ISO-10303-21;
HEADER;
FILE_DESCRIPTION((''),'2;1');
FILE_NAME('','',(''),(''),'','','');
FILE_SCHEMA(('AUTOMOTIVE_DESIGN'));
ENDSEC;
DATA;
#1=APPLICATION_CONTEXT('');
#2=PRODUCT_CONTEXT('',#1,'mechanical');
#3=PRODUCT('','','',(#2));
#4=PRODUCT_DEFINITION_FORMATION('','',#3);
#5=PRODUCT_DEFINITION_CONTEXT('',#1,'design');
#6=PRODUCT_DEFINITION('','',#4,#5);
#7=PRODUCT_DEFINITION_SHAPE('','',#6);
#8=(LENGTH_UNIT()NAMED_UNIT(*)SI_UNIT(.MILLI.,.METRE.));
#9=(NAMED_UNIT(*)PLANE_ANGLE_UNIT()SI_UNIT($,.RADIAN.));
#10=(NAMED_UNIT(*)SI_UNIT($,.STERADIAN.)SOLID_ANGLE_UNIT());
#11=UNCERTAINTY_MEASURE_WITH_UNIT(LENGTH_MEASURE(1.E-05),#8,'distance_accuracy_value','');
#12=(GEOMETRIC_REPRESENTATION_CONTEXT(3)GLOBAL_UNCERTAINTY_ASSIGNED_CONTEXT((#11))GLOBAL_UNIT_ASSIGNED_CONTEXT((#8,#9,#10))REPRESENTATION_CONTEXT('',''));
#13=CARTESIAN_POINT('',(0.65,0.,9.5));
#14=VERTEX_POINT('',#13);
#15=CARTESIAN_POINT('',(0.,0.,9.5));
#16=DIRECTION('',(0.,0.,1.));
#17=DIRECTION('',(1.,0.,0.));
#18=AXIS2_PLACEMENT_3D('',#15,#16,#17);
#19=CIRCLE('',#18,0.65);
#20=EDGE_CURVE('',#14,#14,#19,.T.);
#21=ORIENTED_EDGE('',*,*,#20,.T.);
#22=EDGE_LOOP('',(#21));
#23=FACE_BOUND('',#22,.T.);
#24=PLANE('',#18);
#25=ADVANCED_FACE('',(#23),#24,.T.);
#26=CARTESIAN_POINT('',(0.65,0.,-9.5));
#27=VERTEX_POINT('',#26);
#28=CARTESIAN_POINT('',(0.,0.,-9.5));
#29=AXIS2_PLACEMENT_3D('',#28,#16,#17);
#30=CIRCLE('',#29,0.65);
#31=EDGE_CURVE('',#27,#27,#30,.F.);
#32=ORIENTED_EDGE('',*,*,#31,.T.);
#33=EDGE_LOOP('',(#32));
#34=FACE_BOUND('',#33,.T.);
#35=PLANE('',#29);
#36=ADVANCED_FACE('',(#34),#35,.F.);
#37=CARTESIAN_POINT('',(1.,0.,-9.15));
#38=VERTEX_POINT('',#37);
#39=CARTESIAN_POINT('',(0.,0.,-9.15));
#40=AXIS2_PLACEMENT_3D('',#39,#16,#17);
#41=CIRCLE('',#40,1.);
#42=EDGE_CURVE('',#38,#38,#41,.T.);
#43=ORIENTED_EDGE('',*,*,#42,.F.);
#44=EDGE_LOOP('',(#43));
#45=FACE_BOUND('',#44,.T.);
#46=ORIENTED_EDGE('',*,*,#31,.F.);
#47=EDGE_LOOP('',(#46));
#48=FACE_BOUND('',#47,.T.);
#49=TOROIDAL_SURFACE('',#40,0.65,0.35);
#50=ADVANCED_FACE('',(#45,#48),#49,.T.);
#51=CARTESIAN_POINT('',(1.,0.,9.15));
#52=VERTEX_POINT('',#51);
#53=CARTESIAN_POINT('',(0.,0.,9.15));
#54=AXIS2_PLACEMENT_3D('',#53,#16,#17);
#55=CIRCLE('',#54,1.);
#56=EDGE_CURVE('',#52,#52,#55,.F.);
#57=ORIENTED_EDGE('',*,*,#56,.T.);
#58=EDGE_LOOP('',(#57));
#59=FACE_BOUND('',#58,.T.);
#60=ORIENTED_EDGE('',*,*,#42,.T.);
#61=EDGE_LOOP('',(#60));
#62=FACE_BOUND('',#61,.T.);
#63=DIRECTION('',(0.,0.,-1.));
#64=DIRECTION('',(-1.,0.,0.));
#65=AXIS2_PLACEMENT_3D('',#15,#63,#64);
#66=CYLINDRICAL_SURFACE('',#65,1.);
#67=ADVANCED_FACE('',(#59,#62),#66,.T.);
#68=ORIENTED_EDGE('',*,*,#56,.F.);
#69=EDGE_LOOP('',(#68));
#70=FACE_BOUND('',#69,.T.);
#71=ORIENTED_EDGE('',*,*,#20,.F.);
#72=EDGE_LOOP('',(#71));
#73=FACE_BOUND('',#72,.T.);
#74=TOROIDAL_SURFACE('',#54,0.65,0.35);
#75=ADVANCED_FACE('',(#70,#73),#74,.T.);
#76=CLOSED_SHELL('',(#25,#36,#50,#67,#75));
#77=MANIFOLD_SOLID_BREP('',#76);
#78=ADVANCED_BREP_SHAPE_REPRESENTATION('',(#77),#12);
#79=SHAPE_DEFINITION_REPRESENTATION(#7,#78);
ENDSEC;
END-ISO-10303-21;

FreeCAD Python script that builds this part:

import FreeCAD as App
import Part
import Sketcher
Q = App.Units.Quantity


def edges_at(feature, points):
    """Names of the edges that pass closest to the given points."""
    edges = feature.Shape.Edges
    near = lambda p: min(range(len(edges)), key=lambda i: edges[i].distToShape(Part.Vertex(*p))[0])
    return sorted({f"Edge{near(p) + 1}" for p in points})

doc = App.newDocument("Part")
body = doc.addObject("PartDesign::Body", "Body")

sketch1 = doc.addObject("Sketcher::SketchObject", "Sketch")
body.addObject(sketch1)
sketch1.AttachmentSupport = (doc.XY_Plane, [""])
sketch1.MapMode = "FlatFace"
sketch1.addGeometry(Part.Circle(App.Vector(0, 0, 0), App.Vector(0, 0, 1), 1), False)
sketch1.addConstraint(Sketcher.Constraint("Coincident", 0, 3, -1, 1))
sketch1.addConstraint(Sketcher.Constraint("Diameter", 0, Q("2 mm")))
pad1 = doc.addObject("PartDesign::Pad", "Pad")
body.addObject(pad1)
pad1.Profile = sketch1
pad1.Length = 19
pad1.Midplane = True
doc.recompute()

fillet = doc.addObject("PartDesign::Fillet", "Fillet")
body.addObject(fillet)
fillet.Base = (pad1, edges_at(pad1, [(-1, 0, -9.5), (-1, 0, 9.5)]))
fillet.Radius = 0.35

doc.recompute()
